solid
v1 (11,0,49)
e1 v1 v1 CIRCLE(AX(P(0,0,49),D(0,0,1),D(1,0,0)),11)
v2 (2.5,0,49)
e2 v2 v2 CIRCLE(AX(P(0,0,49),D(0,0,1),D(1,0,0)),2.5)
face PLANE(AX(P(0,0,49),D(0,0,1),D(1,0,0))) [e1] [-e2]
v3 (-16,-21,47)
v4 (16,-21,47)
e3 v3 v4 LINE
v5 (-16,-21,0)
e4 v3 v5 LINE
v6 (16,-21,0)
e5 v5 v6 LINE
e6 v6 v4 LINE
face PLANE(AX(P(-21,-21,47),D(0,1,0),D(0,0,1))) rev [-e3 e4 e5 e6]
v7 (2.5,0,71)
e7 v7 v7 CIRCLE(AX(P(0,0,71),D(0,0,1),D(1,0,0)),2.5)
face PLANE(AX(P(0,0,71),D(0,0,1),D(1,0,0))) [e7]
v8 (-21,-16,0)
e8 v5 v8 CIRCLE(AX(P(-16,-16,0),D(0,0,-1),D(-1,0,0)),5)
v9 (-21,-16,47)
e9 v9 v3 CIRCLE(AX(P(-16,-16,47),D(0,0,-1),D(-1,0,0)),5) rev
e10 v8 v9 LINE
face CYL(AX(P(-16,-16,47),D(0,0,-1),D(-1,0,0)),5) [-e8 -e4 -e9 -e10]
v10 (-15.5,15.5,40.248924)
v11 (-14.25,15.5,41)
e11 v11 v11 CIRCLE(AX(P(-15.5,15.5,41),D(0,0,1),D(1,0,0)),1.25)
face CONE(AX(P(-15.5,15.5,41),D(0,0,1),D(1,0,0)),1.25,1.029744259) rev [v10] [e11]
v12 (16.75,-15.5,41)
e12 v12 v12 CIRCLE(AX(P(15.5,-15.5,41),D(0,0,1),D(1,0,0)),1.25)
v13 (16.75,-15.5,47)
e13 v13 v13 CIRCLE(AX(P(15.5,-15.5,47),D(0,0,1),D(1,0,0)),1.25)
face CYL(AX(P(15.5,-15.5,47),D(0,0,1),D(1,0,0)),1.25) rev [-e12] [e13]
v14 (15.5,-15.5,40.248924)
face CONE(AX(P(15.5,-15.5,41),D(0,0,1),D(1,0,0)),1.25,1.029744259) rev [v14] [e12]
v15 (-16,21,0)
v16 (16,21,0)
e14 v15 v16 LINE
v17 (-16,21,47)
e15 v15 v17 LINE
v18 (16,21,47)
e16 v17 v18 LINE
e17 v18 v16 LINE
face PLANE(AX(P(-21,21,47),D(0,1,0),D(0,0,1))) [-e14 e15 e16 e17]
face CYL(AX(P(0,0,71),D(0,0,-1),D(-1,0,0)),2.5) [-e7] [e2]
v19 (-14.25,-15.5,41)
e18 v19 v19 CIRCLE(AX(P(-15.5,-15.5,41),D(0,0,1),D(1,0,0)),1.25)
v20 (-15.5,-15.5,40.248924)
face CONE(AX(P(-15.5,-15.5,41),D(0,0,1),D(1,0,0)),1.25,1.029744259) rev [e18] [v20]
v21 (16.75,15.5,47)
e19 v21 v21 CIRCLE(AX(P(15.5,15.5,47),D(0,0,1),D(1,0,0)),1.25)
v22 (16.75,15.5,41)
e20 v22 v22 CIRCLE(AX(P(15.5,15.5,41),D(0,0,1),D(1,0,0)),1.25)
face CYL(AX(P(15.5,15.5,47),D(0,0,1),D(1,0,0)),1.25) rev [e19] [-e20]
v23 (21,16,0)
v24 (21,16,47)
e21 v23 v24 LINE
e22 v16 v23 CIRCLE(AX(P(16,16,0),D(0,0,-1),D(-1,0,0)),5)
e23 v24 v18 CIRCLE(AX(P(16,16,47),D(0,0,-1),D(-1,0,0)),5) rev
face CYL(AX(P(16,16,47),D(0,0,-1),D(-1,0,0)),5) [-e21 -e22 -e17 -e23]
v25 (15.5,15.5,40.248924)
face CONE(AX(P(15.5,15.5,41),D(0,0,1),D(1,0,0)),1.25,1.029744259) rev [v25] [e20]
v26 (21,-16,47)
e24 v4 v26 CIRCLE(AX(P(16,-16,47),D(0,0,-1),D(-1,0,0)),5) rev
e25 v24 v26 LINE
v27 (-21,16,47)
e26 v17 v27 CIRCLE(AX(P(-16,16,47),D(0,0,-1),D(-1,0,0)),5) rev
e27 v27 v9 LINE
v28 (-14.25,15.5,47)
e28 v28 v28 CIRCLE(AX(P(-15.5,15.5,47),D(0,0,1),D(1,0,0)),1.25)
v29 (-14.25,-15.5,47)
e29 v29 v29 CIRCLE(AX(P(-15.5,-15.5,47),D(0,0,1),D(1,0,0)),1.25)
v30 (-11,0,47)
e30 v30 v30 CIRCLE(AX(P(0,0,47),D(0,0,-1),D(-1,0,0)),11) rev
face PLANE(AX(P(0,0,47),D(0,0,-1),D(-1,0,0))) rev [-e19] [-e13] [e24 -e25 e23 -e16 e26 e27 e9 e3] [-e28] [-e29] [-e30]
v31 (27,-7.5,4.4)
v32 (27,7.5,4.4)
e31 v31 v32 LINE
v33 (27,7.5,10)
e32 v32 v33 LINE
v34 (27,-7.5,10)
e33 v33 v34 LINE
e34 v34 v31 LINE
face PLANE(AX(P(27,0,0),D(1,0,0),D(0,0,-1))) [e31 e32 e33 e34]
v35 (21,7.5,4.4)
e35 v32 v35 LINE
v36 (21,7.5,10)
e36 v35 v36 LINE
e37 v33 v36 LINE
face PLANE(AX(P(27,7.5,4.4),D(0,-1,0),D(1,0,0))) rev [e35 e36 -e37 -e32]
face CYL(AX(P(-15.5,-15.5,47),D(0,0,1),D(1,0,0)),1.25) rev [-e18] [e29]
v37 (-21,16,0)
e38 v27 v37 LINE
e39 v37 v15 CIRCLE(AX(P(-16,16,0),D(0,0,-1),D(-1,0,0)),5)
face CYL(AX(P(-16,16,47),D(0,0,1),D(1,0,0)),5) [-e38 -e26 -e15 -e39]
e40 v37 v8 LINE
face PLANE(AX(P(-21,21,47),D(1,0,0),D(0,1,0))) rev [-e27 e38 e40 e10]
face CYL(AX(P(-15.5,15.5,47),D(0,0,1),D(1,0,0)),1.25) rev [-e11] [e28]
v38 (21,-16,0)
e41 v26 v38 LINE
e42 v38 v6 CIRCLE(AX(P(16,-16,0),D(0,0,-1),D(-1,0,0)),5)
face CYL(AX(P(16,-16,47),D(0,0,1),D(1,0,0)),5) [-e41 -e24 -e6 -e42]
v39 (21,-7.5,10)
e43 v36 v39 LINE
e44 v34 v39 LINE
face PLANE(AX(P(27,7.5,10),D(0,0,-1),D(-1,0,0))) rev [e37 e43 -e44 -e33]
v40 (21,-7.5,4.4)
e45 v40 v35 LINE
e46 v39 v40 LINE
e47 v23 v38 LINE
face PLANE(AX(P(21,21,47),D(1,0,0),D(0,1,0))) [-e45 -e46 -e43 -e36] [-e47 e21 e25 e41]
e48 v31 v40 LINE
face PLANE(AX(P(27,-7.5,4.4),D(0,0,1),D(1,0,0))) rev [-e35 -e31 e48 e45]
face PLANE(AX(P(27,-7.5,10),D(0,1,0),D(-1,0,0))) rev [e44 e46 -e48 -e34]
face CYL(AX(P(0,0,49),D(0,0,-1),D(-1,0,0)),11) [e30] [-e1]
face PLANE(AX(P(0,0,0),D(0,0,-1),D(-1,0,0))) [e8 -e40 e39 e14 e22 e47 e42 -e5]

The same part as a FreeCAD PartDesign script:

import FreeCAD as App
import Part
import Sketcher

V = App.Vector
Q = App.Units.Quantity


def edges_at(feature, points):
    """Names of the edges that pass closest to the given points."""
    edges = feature.Shape.Edges
    near = lambda p: min(range(len(edges)), key=lambda i: edges[i].distToShape(Part.Vertex(*p))[0])
    return sorted({f"Edge{near(p) + 1}" for p in points})

doc = App.newDocument("Part")
params = doc.addObject("Spreadsheet::Sheet", "Params")
for row, (alias, value) in enumerate([
    ("sketch1_width", "42 mm"),
    ("pad1_length", "47 mm"),
    ("sketch2_diameter", "5 mm"),
    ("pad2_length", "24 mm"),
    ("sketch3_diameter", "22 mm"),
    ("sketch3_diameter2", "5 mm"),
    ("pad3_length", "2 mm"),
    ("sketch4_height", "6 mm"),
    ("sketch4_width", "1.25 mm"),
    ("groove_angle", "360 deg"),
    ("fillet_radius", "5 mm"),
    ("sketch5_width", "15 mm"),
    ("sketch5_height", "5.6 mm"),
    ("pad4_length", "6 mm"),
], start=1):
    params.set(f"A{row}", alias)
    params.set(f"B{row}", "=" + value)
    params.setAlias(f"B{row}", alias)

body = doc.addObject("PartDesign::Body", "Body")

# Sketch on XY plane
sketch1 = body.newObject("Sketcher::SketchObject", "Sketch")
sketch1.AttachmentSupport = (doc.getObject("XY_Plane"), [""])
sketch1.MapMode = "FlatFace"
sketch1.addGeometry(Part.LineSegment(V(-21, 21, 0), V(-21, -21, 0)), False)
sketch1.addGeometry(Part.LineSegment(V(-21, -21, 0), V(21, -21, 0)), False)
sketch1.addGeometry(Part.LineSegment(V(21, -21, 0), V(21, 21, 0)), False)
sketch1.addGeometry(Part.LineSegment(V(21, 21, 0), V(-21, 21, 0)), False)
sketch1.addConstraint(Sketcher.Constraint("Coincident", 0, 2, 1, 1))
sketch1.addConstraint(Sketcher.Constraint("Coincident", 1, 2, 2, 1))
sketch1.addConstraint(Sketcher.Constraint("Coincident", 2, 2, 3, 1))
sketch1.addConstraint(Sketcher.Constraint("Coincident", 3, 2, 0, 1))
sketch1.addConstraint(Sketcher.Constraint("Vertical", 0))
sketch1.addConstraint(Sketcher.Constraint("Horizontal", 1))
sketch1.addConstraint(Sketcher.Constraint("Vertical", 2))
sketch1.addConstraint(Sketcher.Constraint("Horizontal", 3))
sketch1.addConstraint(Sketcher.Constraint("Symmetric", 0, 2, 2, 2, -1, 1))
sketch1.addConstraint(Sketcher.Constraint("Equal", 3, 0))
sketch1.addConstraint(Sketcher.Constraint("DistanceX", 1, 1, 1, 2, Q("42 mm")))
sketch1.setExpression("Constraints[10]", "Params.sketch1_width")
pad1 = body.newObject("PartDesign::Pad", "Pad")
pad1.Profile = sketch1
pad1.setExpression("Length", "Params.pad1_length")

# Sketch on XY plane
sketch2 = body.newObject("Sketcher::SketchObject", "Sketch001")
sketch2.AttachmentSupport = (doc.getObject("XY_Plane"), [""])
sketch2.MapMode = "FlatFace"
sketch2.AttachmentOffset = App.Placement(V(0, 0, 47), App.Rotation())
sketch2.addGeometry(Part.Circle(V(0, 0, 0), V(0, 0, 1), 2.5), False)
sketch2.addConstraint(Sketcher.Constraint("Coincident", 0, 3, -1, 1))
sketch2.addConstraint(Sketcher.Constraint("Diameter", 0, Q("5 mm")))
sketch2.setExpression("Constraints[1]", "Params.sketch2_diameter")
pad2 = body.newObject("PartDesign::Pad", "Pad001")
pad2.Profile = sketch2
pad2.setExpression("Length", "Params.pad2_length")

# Sketch on XY plane
sketch3 = body.newObject("Sketcher::SketchObject", "Sketch002")
sketch3.AttachmentSupport = (doc.getObject("XY_Plane"), [""])
sketch3.MapMode = "FlatFace"
sketch3.AttachmentOffset = App.Placement(V(0, 0, 47), App.Rotation())
sketch3.addGeometry(Part.Circle(V(0, 0, 0), V(0, 0, 1), 11), False)
sketch3.addGeometry(Part.Circle(V(0, 0, 0), V(0, 0, 1), 2.5), False)
sketch3.addConstraint(Sketcher.Constraint("Coincident", 0, 3, -1, 1))
sketch3.addConstraint(Sketcher.Constraint("Coincident", 1, 3, -1, 1))
sketch3.addConstraint(Sketcher.Constraint("Diameter", 0, Q("22 mm")))
sketch3.addConstraint(Sketcher.Constraint("Diameter", 1, Q("5 mm")))
sketch3.setExpression("Constraints[2]", "Params.sketch3_diameter")
sketch3.setExpression("Constraints[3]", "Params.sketch3_diameter2")
pad3 = body.newObject("PartDesign::Pad", "Pad002")
pad3.Profile = sketch3
pad3.setExpression("Length", "Params.pad3_length")

# Sketch on YZ plane
sketch4 = body.newObject("Sketcher::SketchObject", "Sketch003")
sketch4.AttachmentSupport = (doc.getObject("YZ_Plane"), [""])
sketch4.MapMode = "FlatFace"
sketch4.AttachmentOffset = App.Placement(V(0, 0, -15.5), App.Rotation())
sketch4.addGeometry(Part.LineSegment(V(15.5, 40.248924, 0), V(15.5, 47, 0)), False)
sketch4.addGeometry(Part.LineSegment(V(15.5, 47, 0), V(14.25, 47, 0)), False)
sketch4.addGeometry(Part.LineSegment(V(14.25, 47, 0), V(14.25, 41, 0)), False)
sketch4.addGeometry(Part.LineSegment(V(14.25, 41, 0), V(15.5, 40.248924, 0)), False)
sketch4.addGeometry(Part.LineSegment(V(15.5, 47, 0), V(15.5, 40.248924, 0)), True)  # axis
sketch4.addConstraint(Sketcher.Constraint("Coincident", 0, 2, 1, 1))
sketch4.addConstraint(Sketcher.Constraint("Coincident", 1, 2, 2, 1))
sketch4.addConstraint(Sketcher.Constraint("Coincident", 2, 2, 3, 1))
sketch4.addConstraint(Sketcher.Constraint("Coincident", 3, 2, 0, 1))
sketch4.addConstraint(Sketcher.Constraint("Vertical", 0))
sketch4.addConstraint(Sketcher.Constraint("Horizontal", 1))
sketch4.addConstraint(Sketcher.Constraint("Vertical", 2))
sketch4.addConstraint(Sketcher.Constraint("Vertical", 4))
sketch4.addConstraint(Sketcher.Constraint("Coincident", 4, 1, 0, 2))
sketch4.addConstraint(Sketcher.Constraint("Equal", 0, 4))
sketch4.addConstraint(Sketcher.Constraint("DistanceY", 2, 2, 2, 1, Q("6 mm")))
sketch4.addConstraint(Sketcher.Constraint("Angle", 3, Q("-31 deg")))
sketch4.addConstraint(Sketcher.Constraint("DistanceY", -1, 1, 0, 2, Q("47 mm")))
sketch4.addConstraint(Sketcher.Constraint("DistanceX", 1, 2, 1, 1, Q("1.25 mm")))
sketch4.addConstraint(Sketcher.Constraint("DistanceX", -1, 1, 0, 2, Q("15.5 mm")))
sketch4.setExpression("Constraints[10]", "Params.sketch4_height")
sketch4.setExpression("Constraints[13]", "Params.sketch4_width")
groove = body.newObject("PartDesign::Groove", "Groove")
groove.Profile = sketch4
groove.ReferenceAxis = (sketch4, ["Axis0"])
groove.setExpression("Angle", "Params.groove_angle")
doc.recompute()

polarpattern = body.newObject("PartDesign::PolarPattern", "PolarPattern")
polarpattern.Originals = [groove]
polarpattern.Axis = (doc.getObject("Z_Axis"), [""])
polarpattern.Angle = 360
polarpattern.Occurrences = 4
body.Tip = polarpattern
doc.recompute()

fillet = body.newObject("PartDesign::Fillet", "Fillet")
fillet.Base = (polarpattern, edges_at(polarpattern, [
    (-21, -21, 23.5),
    (-21, 21, 23.5),
    (21, 21, 23.5),
    (21, -21, 23.5),
]))
fillet.setExpression("Radius", "Params.fillet_radius")

# Sketch on YZ plane
sketch5 = body.newObject("Sketcher::SketchObject", "Sketch004")
sketch5.AttachmentSupport = (doc.getObject("YZ_Plane"), [""])
sketch5.MapMode = "FlatFace"
sketch5.AttachmentOffset = App.Placement(V(0, 0, 21), App.Rotation())
sketch5.addGeometry(Part.LineSegment(V(7.5, 10, 0), V(-7.5, 10, 0)), False)
sketch5.addGeometry(Part.LineSegment(V(-7.5, 10, 0), V(-7.5, 4.4, 0)), False)
sketch5.addGeometry(Part.LineSegment(V(-7.5, 4.4, 0), V(7.5, 4.4, 0)), False)
sketch5.addGeometry(Part.LineSegment(V(7.5, 4.4, 0), V(7.5, 10, 0)), False)
sketch5.addConstraint(Sketcher.Constraint("Coincident", 0, 2, 1, 1))
sketch5.addConstraint(Sketcher.Constraint("Coincident", 1, 2, 2, 1))
sketch5.addConstraint(Sketcher.Constraint("Coincident", 2, 2, 3, 1))
sketch5.addConstraint(Sketcher.Constraint("Coincident", 3, 2, 0, 1))
sketch5.addConstraint(Sketcher.Constraint("Horizontal", 0))
sketch5.addConstraint(Sketcher.Constraint("Vertical", 1))
sketch5.addConstraint(Sketcher.Constraint("Horizontal", 2))
sketch5.addConstraint(Sketcher.Constraint("Vertical", 3))
sketch5.addConstraint(Sketcher.Constraint("DistanceX", 0, 2, 0, 1, Q("15 mm")))
sketch5.addConstraint(Sketcher.Constraint("DistanceY", 1, 2, 1, 1, Q("5.6 mm")))
sketch5.addConstraint(Sketcher.Constraint("DistanceY", -1, 1, 0, 2, Q("10 mm")))
sketch5.addConstraint(Sketcher.Constraint("DistanceX", 0, 2, -1, 1, Q("7.5 mm")))
sketch5.setExpression("Constraints[8]", "Params.sketch5_width")
sketch5.setExpression("Constraints[9]", "Params.sketch5_height")
pad4 = body.newObject("PartDesign::Pad", "Pad003")
pad4.Profile = sketch5
pad4.setExpression("Length", "Params.pad4_length")

doc.recompute()
